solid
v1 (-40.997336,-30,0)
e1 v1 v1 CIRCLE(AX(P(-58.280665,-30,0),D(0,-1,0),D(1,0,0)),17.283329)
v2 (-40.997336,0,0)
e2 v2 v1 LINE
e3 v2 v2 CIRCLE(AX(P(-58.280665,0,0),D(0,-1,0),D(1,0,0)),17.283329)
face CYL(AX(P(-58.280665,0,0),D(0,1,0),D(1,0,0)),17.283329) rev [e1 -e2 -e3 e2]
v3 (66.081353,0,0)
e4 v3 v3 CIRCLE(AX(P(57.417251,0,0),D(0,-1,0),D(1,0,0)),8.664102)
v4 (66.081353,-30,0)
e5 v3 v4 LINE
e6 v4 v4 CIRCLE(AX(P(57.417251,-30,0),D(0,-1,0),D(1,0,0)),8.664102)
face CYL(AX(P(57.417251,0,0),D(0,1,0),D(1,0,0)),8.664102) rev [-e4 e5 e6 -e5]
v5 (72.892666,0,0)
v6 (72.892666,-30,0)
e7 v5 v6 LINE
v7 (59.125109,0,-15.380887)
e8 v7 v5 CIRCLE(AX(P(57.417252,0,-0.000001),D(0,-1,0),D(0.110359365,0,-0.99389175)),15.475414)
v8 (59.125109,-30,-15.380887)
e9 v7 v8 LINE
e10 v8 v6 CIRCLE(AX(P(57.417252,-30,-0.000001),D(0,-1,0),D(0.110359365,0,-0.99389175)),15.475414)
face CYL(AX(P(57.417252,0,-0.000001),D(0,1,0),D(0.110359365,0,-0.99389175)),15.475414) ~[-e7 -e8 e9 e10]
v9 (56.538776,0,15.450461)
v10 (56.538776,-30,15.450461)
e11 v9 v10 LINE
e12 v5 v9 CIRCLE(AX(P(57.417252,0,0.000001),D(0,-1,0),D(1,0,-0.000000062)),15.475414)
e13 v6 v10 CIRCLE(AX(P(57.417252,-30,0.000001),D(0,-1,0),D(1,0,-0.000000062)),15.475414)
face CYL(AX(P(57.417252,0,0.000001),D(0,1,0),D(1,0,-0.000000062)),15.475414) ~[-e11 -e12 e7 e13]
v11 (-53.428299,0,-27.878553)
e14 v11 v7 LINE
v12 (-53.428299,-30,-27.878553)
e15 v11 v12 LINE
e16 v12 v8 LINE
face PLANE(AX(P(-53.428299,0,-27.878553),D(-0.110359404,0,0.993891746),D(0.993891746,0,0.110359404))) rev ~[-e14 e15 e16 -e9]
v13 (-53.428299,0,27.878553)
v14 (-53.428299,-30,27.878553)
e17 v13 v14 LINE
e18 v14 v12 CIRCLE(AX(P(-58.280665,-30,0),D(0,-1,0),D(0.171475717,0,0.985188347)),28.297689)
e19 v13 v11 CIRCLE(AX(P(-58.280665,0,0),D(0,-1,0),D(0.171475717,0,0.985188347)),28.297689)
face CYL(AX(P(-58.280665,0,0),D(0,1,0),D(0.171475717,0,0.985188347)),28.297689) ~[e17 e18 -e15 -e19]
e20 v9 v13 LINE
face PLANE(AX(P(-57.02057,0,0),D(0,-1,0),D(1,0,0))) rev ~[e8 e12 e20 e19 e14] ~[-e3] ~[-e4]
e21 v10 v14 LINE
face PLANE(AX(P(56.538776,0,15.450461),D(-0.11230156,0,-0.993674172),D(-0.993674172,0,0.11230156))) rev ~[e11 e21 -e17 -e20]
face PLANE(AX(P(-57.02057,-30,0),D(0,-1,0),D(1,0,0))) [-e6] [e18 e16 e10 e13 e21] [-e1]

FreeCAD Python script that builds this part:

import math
import FreeCAD as App
import Part
import Sketcher
from FreeCAD import Vector
Q = App.Units.Quantity

doc = App.newDocument("Part")
params = doc.addObject("Spreadsheet::Sheet", "Params")
for row, (alias, value) in enumerate([
    ("pad1_length", "30 mm"),
], start=1):
    params.set(f"A{row}", alias)
    params.set(f"B{row}", "=" + value)
    params.setAlias(f"B{row}", alias)

body = doc.addObject("PartDesign::Body", "Body")

sketch1 = doc.addObject("Sketcher::SketchObject", "Sketch")
body.addObject(sketch1)
sketch1.AttachmentSupport = (doc.XZ_Plane, [""])
sketch1.MapMode = "FlatFace"
sketch1.addGeometry([
    Part.ArcOfCircle(Part.Circle(Vector(-58.280665, 0, 0), Vector(0, 0, 1), 28.297689), math.radians(80.126369), math.radians(279.873631)),
    Part.LineSegment(Vector(-53.428299, -27.878553, 0), Vector(59.125109, -15.380887, 0)),
    Part.ArcOfCircle(Part.Circle(Vector(57.417252, -0.000001, 0), Vector(0, 0, 1), 15.475414), math.radians(-83.663968), math.radians(0.000003)),
    Part.ArcOfCircle(Part.Circle(Vector(57.417252, 0.000001, 0), Vector(0, 0, 1), 15.475414), math.radians(-0.000004), math.radians(93.254197)),
    Part.LineSegment(Vector(56.538776, 15.450461, 0), Vector(-53.428299, 27.878553, 0)),
    Part.Circle(Vector(-58.280665, 0, 0), Vector(0, 0, 1), 17.283329),
    Part.Circle(Vector(57.417251, 0, 0), Vector(0, 0, 1), 8.664102),
], False)
sketch1.addConstraint([
    Sketcher.Constraint("Coincident", 0, 2, 1, 1),
    Sketcher.Constraint("Tangent", 1, 2, 2, 1),
    Sketcher.Constraint("Tangent", 2, 2, 3, 1),
    Sketcher.Constraint("Coincident", 3, 2, 4, 1),
    Sketcher.Constraint("Coincident", 4, 2, 0, 1),
    Sketcher.Constraint("Coincident", 5, 3, 0, 3),
    Sketcher.Constraint("Coincident", 6, 3, 2, 3),
    Sketcher.Constraint("Equal", 2, 3),
    Sketcher.Constraint("Symmetric", 0, 2, 4, 2, -1),
    Sketcher.Constraint("PointOnObject", 2, 3, -1),
    Sketcher.Constraint("PointOnObject", 2, 2, -1),
    Sketcher.Constraint("Radius", 0, Q("28.297689 mm")),
    Sketcher.Constraint("Diameter", 5, Q("34.566658 mm")),
    Sketcher.Constraint("Diameter", 6, Q("17.328204 mm")),
    Sketcher.Constraint("Radius", 2, Q("15.475414 mm")),
    Sketcher.Constraint("DistanceX", 0, 2, -1, 1, Q("53.428299 mm")),
    Sketcher.Constraint("Distance", 1, Q("113.245138 mm")),
    Sketcher.Constraint("DistanceX", -1, 1, 6, 3, Q("57.417251 mm")),
    Sketcher.Constraint("DistanceY", -1, 1, 3, 2, Q("15.450461 mm")),
])
pad1 = doc.addObject("PartDesign::Pad", "Pad")
body.addObject(pad1)
pad1.Profile = sketch1
pad1.setExpression("Length", "Params.pad1_length")

doc.recompute()
